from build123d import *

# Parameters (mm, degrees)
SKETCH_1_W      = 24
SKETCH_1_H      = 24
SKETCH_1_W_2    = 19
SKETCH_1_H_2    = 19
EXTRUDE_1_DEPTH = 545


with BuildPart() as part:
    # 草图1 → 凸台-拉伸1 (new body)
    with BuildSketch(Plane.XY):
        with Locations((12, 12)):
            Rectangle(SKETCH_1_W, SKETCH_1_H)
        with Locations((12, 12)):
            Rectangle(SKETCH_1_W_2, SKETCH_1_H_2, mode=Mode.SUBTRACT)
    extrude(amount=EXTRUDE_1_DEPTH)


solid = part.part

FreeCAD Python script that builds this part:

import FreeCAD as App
import Part
import Sketcher
from FreeCAD import Vector


def add_polygon(sketch, points):
    """Adds a closed chain of lines whose ends are joined by coincident constraints."""
    first, n = sketch.GeometryCount, len(points)
    for a, b in zip(points, points[1:] + points[:1]):
        sketch.addGeometry(Part.LineSegment(App.Vector(*a, 0), App.Vector(*b, 0)), False)
    for i in range(n):
        sketch.addConstraint(Sketcher.Constraint("Coincident", first + i, 2, first + (i + 1) % n, 1))

doc = App.newDocument("Part")
body = doc.addObject("PartDesign::Body", "Body")

# Sketch on XY plane
sketch1 = doc.addObject("Sketcher::SketchObject", "Sketch")
body.addObject(sketch1)
sketch1.AttachmentSupport = (doc.XY_Plane, [""])
sketch1.MapMode = "FlatFace"
add_polygon(sketch1, [(0, 24), (0, 0), (24, 0), (24, 24)])  # lines 0-3
add_polygon(sketch1, [(22, 2), (2, 2), (2, 22), (22, 22)])  # lines 4-7
sketch1.addConstraint([
    Sketcher.Constraint("Vertical", 0),
    Sketcher.Constraint("Horizontal", 1),
    Sketcher.Constraint("Vertical", 2),
    Sketcher.Constraint("Horizontal", 3),
    Sketcher.Constraint("Horizontal", 4),
    Sketcher.Constraint("Vertical", 5),
    Sketcher.Constraint("Horizontal", 6),
    Sketcher.Constraint("Vertical", 7),
    Sketcher.Constraint("Coincident", 0, 2, -1, 1),
    Sketcher.Constraint("Equal", 3, 0),
    Sketcher.Constraint("Equal", 6, 5),
    Sketcher.Constraint("DistanceX", 1, 1, 1, 2, 24.0),
    Sketcher.Constraint("DistanceX", 4, 2, 4, 1, 19.0),
    Sketcher.Constraint("DistanceX", -1, 1, 4, 2, 2.5),
    Sketcher.Constraint("DistanceY", -1, 1, 4, 2, 2.5),
])
pad1 = doc.addObject("PartDesign::Pad", "Pad")
body.addObject(pad1)
pad1.Profile = sketch1
pad1.Length = 545

doc.recompute()
